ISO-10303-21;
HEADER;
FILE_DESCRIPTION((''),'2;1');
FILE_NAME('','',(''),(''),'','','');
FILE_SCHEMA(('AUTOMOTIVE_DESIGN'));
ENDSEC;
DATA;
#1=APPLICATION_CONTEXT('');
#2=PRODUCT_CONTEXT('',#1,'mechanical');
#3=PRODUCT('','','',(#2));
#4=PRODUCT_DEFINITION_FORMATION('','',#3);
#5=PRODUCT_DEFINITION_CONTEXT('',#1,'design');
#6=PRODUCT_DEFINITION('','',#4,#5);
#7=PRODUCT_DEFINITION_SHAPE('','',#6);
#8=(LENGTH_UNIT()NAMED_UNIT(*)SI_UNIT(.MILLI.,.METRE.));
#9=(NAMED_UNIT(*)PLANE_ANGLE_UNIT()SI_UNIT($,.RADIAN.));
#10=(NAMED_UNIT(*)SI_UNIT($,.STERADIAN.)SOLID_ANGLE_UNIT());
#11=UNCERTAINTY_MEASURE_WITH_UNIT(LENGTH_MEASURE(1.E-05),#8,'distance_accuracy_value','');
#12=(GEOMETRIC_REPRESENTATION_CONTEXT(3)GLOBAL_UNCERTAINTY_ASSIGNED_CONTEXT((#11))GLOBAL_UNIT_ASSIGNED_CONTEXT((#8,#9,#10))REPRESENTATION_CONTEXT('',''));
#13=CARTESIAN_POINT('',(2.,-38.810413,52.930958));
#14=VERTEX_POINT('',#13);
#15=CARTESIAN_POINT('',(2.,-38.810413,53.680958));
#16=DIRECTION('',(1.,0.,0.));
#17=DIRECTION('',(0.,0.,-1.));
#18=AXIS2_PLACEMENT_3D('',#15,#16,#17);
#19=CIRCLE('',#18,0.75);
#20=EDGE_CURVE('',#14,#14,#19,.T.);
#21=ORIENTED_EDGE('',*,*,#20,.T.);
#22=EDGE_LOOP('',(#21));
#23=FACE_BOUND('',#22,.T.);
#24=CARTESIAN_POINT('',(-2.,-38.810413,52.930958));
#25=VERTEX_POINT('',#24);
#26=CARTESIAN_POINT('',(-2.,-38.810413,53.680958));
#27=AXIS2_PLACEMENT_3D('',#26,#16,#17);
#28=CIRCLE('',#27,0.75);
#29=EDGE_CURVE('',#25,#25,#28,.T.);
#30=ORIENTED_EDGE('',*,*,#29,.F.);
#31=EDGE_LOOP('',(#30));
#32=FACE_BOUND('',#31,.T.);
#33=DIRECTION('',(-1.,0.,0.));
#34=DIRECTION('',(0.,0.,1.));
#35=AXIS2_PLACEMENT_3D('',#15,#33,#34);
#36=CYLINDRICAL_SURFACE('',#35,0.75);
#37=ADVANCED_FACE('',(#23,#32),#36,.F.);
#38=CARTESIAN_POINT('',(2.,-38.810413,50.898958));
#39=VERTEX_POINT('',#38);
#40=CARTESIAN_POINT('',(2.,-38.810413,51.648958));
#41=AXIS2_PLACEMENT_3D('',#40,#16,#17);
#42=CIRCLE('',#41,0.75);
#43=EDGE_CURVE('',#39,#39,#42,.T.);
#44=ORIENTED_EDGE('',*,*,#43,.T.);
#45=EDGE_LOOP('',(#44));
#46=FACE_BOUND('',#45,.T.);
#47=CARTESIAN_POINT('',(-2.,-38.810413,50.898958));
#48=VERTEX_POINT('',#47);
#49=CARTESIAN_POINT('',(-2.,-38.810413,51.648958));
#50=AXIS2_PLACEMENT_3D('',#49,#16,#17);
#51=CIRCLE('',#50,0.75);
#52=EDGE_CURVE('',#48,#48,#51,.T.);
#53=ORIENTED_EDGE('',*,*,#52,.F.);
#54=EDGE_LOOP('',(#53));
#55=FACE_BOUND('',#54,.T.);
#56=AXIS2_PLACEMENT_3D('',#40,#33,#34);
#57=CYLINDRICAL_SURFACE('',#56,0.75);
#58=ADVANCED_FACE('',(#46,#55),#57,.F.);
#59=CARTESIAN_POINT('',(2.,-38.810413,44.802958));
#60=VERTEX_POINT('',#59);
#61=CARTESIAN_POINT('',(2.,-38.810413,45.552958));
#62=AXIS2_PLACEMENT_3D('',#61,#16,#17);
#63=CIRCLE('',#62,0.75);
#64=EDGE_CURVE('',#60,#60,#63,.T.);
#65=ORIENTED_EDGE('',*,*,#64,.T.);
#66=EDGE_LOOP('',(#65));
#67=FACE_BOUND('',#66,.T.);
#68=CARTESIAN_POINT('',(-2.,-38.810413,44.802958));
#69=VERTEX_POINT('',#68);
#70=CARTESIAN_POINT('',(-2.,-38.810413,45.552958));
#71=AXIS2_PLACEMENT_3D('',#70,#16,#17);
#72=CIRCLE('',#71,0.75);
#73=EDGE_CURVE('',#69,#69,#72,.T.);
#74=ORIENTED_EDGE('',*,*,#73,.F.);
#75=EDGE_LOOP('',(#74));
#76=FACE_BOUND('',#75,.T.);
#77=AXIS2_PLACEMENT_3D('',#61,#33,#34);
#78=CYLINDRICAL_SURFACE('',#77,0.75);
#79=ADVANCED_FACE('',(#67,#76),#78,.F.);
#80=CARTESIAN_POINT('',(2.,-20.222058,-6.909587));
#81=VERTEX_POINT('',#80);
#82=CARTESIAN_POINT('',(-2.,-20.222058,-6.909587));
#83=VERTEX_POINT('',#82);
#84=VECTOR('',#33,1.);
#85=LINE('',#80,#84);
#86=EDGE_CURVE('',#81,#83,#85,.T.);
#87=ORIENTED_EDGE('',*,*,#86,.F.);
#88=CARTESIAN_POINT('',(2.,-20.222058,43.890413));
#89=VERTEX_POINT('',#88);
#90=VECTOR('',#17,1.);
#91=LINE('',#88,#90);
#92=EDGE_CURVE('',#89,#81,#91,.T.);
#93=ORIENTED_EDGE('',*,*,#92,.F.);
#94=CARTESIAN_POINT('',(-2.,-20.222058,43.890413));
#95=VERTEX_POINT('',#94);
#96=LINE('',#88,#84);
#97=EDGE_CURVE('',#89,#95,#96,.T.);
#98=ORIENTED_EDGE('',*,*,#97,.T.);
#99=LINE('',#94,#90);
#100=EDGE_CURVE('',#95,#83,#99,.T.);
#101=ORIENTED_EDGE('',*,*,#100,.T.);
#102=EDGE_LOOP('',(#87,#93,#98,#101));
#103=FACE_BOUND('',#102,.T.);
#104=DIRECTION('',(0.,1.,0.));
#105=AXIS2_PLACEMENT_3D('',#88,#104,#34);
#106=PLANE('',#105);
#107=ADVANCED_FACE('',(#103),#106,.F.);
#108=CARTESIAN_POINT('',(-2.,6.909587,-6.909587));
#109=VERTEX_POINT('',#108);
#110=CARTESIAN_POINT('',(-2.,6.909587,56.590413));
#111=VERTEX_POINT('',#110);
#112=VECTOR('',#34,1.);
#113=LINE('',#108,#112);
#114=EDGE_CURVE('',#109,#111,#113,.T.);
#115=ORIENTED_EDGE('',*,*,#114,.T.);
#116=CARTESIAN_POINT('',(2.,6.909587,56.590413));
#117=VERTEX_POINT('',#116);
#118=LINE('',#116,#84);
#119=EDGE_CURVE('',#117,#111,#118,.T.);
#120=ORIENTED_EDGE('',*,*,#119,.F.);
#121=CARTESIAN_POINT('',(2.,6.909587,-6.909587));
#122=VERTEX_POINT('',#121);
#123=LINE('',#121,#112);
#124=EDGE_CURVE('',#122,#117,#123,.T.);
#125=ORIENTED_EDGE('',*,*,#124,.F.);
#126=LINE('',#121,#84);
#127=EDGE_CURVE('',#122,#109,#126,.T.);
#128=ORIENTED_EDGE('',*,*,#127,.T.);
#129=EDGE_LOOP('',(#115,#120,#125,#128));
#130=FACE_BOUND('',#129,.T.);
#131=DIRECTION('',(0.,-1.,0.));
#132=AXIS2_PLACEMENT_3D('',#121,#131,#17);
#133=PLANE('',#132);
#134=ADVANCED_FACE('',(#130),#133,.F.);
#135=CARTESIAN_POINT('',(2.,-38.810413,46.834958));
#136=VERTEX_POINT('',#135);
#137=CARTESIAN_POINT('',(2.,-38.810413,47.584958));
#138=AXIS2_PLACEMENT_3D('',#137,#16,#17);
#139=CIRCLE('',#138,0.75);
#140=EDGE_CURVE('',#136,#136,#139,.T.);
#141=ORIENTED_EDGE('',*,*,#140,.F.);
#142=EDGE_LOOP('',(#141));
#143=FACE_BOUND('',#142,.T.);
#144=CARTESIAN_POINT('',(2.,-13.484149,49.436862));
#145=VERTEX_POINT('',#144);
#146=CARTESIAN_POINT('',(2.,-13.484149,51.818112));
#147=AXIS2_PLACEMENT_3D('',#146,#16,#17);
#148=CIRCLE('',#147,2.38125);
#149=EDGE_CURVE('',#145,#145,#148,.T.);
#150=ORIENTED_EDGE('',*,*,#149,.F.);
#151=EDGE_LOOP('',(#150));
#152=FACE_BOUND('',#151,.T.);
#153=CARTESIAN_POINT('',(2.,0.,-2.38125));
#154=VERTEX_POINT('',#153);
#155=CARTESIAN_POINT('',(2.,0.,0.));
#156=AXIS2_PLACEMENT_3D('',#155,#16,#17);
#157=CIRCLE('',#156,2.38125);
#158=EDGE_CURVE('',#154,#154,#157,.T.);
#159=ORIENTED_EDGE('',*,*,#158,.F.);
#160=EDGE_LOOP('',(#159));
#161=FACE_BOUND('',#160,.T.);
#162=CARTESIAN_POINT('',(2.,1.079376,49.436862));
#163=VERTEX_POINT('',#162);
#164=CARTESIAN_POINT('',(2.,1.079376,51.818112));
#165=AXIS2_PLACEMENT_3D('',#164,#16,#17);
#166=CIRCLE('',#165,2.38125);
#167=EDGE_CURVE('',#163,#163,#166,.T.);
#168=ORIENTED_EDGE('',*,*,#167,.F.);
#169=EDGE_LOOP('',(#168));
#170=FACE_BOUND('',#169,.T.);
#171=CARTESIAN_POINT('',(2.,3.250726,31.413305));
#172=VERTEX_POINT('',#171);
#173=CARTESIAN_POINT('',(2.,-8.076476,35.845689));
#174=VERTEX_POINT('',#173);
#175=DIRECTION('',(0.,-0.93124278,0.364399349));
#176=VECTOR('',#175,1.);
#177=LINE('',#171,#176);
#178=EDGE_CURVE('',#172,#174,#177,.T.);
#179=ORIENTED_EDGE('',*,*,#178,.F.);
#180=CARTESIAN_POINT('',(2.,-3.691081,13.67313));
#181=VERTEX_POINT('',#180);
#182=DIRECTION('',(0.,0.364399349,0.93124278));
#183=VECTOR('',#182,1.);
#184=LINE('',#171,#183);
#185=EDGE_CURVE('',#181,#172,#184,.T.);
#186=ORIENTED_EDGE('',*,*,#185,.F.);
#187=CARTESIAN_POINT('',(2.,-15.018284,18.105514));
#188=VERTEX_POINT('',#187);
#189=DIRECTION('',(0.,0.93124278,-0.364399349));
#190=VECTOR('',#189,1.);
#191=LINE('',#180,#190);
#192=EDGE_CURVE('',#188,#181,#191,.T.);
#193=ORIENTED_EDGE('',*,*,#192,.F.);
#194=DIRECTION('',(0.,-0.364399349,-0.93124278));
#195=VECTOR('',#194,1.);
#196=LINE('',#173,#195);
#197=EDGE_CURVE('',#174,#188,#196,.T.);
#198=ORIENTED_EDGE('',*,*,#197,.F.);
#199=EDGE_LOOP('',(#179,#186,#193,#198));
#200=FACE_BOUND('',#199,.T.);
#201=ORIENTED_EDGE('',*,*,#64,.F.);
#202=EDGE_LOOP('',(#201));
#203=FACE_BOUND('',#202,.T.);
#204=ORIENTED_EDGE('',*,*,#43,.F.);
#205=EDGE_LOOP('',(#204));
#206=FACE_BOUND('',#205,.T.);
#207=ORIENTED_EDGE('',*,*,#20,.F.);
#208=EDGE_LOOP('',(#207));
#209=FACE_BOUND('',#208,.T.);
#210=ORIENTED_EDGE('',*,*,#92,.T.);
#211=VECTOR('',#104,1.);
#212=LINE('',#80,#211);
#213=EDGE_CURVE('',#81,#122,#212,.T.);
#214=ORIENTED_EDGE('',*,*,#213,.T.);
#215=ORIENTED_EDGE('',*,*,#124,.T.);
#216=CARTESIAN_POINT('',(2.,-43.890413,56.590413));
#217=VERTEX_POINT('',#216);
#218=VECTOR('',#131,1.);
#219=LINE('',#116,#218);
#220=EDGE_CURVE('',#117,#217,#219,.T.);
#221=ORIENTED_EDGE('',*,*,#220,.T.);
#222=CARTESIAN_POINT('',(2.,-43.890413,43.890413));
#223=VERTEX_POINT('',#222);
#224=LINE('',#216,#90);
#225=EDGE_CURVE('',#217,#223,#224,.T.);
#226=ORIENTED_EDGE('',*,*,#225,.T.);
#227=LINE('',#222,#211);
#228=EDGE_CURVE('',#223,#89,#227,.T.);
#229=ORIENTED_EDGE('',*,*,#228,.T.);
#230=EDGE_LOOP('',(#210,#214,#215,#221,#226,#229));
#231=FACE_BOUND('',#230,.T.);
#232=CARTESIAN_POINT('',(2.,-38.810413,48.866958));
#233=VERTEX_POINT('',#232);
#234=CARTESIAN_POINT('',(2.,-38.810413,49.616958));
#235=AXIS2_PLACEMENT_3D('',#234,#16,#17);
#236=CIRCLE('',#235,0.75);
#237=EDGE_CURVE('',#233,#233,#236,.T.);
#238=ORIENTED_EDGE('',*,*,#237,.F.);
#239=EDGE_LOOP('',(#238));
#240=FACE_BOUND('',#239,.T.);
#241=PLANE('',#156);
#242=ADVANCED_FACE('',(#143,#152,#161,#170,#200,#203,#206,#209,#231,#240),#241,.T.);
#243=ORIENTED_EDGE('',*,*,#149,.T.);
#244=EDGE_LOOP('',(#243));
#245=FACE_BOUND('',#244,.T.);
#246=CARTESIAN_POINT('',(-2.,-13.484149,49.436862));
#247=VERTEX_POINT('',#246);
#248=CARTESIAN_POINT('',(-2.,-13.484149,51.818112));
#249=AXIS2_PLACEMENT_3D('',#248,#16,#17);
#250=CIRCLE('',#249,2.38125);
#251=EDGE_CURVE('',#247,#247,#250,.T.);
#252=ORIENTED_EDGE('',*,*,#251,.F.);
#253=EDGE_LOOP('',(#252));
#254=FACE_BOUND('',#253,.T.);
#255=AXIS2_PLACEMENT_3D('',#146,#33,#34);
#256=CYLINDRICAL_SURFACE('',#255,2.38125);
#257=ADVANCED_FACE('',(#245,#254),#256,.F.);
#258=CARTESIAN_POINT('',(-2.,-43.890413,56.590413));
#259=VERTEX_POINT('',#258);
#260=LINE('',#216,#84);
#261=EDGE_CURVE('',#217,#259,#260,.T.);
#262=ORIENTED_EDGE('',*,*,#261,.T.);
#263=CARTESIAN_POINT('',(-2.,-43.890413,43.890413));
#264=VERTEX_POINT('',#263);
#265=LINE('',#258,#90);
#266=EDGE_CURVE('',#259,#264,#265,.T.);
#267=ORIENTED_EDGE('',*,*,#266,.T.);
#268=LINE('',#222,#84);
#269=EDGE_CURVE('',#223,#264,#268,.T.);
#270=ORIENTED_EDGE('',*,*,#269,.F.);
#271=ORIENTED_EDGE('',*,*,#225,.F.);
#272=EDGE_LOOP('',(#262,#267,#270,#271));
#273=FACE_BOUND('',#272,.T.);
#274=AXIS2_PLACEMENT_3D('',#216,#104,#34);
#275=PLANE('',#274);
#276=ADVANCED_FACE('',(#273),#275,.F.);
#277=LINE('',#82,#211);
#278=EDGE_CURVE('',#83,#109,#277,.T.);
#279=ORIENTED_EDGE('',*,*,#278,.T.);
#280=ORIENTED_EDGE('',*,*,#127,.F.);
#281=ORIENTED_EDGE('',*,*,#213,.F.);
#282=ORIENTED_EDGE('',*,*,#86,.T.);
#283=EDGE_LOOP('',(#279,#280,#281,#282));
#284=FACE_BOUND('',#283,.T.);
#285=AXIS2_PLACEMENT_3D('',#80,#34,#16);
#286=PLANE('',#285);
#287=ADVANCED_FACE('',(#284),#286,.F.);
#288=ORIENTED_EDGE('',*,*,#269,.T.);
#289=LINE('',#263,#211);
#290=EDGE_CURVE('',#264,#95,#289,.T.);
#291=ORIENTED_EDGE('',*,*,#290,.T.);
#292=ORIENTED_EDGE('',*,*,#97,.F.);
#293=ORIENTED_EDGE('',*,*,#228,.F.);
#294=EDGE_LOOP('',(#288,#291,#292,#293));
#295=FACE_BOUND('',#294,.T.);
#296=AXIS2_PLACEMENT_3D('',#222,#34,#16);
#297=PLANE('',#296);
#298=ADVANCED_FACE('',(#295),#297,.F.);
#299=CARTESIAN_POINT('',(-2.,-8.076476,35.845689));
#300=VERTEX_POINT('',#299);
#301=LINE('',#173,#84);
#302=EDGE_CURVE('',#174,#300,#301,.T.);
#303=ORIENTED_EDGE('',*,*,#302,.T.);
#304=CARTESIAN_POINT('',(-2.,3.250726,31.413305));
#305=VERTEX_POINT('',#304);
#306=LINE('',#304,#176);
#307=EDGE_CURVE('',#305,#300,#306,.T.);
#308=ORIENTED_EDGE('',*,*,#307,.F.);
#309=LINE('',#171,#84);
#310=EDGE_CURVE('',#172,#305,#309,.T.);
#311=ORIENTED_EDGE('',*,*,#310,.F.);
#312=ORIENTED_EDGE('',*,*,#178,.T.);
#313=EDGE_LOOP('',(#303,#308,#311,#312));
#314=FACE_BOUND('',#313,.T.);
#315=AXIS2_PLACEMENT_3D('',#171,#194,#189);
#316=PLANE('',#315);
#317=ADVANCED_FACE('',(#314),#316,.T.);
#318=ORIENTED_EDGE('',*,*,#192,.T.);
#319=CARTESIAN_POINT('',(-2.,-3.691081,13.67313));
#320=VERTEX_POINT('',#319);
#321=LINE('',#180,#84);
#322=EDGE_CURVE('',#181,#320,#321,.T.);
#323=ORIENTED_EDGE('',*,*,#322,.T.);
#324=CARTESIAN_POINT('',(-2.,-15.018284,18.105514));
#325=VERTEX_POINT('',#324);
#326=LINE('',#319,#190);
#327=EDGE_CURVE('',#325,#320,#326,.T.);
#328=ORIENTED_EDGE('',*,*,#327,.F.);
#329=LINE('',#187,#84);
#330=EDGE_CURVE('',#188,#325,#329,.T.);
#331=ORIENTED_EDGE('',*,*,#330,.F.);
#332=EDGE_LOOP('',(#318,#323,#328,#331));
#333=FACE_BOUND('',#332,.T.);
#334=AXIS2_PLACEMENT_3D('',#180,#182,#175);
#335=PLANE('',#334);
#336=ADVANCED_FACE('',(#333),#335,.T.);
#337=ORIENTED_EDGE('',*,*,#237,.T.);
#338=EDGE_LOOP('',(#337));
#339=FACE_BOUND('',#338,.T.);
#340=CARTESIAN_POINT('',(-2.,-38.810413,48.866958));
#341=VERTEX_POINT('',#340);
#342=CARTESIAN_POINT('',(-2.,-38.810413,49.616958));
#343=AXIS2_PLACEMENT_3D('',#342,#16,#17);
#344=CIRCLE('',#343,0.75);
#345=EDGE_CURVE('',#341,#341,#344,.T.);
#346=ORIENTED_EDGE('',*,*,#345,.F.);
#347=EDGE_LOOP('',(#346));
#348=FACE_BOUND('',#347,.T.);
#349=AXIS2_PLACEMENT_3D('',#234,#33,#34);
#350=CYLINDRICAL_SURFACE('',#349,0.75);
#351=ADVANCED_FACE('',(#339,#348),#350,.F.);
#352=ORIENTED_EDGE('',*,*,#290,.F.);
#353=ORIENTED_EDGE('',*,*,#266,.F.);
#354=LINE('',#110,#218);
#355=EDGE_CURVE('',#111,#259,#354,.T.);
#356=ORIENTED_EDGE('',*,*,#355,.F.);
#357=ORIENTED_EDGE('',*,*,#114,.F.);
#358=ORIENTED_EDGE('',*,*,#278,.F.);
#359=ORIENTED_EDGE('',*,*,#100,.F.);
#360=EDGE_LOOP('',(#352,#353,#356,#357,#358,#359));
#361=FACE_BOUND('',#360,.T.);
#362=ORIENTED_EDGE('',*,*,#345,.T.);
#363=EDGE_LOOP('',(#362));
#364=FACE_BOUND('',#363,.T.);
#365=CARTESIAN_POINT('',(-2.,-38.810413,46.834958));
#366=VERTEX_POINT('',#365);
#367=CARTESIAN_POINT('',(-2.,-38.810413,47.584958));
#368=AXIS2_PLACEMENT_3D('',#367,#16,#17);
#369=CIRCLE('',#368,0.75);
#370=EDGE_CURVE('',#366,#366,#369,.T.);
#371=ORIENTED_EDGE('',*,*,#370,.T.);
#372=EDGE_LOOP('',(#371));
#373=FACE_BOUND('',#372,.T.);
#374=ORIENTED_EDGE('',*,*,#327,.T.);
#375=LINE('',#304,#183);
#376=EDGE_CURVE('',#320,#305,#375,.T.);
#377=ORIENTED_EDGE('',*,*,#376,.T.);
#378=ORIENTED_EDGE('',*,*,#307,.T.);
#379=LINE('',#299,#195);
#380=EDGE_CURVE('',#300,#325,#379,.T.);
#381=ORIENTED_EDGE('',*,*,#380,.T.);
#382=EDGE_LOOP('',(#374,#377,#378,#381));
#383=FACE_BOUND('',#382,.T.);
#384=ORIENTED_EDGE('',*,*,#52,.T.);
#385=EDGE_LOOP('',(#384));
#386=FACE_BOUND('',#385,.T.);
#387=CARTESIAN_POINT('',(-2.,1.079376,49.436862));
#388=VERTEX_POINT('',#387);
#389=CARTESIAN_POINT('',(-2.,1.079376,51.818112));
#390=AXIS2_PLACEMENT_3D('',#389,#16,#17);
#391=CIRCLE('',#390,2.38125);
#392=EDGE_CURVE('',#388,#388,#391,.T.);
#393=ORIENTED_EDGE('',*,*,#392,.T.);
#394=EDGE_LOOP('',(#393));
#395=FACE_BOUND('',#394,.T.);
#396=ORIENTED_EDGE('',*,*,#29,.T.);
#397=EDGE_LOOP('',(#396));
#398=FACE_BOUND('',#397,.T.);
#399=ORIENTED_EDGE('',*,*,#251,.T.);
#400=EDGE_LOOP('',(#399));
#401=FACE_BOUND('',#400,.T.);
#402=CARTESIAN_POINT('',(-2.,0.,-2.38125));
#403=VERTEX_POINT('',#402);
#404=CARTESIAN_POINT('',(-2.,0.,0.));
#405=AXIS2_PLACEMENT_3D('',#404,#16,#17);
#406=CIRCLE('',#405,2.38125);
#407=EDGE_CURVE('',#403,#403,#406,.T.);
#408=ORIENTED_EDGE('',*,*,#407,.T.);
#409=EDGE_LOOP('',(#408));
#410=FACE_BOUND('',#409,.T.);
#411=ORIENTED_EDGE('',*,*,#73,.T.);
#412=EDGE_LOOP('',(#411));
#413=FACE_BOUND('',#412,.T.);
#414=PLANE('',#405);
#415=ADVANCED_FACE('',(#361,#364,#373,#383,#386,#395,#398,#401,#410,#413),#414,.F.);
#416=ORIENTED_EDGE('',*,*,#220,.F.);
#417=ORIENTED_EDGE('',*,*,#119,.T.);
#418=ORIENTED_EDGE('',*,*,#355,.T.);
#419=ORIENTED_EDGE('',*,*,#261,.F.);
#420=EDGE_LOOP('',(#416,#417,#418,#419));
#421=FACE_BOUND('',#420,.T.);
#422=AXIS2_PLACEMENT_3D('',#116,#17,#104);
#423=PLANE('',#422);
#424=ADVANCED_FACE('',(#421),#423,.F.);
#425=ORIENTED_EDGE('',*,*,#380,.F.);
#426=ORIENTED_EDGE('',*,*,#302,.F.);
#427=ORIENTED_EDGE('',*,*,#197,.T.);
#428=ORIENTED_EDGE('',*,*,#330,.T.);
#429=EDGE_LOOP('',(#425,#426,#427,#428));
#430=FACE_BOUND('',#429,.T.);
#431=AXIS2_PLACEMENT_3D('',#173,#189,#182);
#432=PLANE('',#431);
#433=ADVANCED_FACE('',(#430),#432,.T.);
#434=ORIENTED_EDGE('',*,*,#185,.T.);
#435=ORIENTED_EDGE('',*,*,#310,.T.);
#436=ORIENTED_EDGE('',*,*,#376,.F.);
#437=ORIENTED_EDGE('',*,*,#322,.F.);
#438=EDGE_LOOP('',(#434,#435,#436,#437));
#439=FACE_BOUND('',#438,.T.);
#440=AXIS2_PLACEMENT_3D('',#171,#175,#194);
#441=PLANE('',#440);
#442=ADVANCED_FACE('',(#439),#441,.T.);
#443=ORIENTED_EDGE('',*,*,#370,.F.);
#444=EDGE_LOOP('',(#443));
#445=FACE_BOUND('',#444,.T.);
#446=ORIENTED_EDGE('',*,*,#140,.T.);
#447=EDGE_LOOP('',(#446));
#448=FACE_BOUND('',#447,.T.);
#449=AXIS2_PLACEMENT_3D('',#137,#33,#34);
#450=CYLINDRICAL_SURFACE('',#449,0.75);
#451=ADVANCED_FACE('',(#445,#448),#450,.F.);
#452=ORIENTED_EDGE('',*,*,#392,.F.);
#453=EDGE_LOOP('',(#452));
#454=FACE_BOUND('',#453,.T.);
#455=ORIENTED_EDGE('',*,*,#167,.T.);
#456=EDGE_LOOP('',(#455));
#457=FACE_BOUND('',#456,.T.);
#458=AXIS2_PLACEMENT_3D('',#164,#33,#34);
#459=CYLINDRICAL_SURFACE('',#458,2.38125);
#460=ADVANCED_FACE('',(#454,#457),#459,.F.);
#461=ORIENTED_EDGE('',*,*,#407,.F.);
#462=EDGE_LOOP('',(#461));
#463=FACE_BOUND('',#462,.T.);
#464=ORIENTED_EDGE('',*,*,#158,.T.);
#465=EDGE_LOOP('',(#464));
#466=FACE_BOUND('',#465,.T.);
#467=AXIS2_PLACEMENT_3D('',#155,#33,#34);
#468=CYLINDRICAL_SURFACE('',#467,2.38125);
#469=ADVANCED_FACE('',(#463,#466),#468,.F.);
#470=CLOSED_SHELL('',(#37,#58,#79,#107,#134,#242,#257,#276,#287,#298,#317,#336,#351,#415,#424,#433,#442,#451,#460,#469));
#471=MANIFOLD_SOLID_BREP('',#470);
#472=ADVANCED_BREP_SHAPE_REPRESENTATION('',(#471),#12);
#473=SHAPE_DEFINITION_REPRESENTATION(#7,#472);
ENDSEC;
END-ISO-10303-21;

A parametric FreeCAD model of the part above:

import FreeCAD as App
import Part
import Sketcher
Q = App.Units.Quantity


def add_polygon(sketch, points):
    """Adds a closed chain of lines whose ends are joined by coincident constraints."""
    first, n = sketch.GeometryCount, len(points)
    for a, b in zip(points, points[1:] + points[:1]):
        sketch.addGeometry(Part.LineSegment(App.Vector(*a, 0), App.Vector(*b, 0)), False)
    for i in range(n):
        sketch.addConstraint(Sketcher.Constraint("Coincident", first + i, 2, first + (i + 1) % n, 1))

doc = App.newDocument("Part")
body = doc.addObject("PartDesign::Body", "Body")

sketch1 = body.newObject("Sketcher::SketchObject", "Sketch")
sketch1.AttachmentSupport = (doc.getObject("YZ_Plane"), [""])
sketch1.MapMode = "FlatFace"
add_polygon(sketch1, [(6.9, -6.9), (6.9, 56.6), (-43.9, 56.6), (-43.9, 43.9), (-20.2, 43.9), (-20.2, -6.9)])
sketch1.addGeometry(Part.Circle(App.Vector(-38.8, 53.7, 0), App.Vector(0, 0, 1), 0.8), False)
sketch1.addGeometry(Part.Circle(App.Vector(-38.8, 51.6, 0), App.Vector(0, 0, 1), 0.8), False)
sketch1.addGeometry(Part.Circle(App.Vector(-38.8, 49.6, 0), App.Vector(0, 0, 1), 0.8), False)
sketch1.addGeometry(Part.Circle(App.Vector(-38.8, 47.6, 0), App.Vector(0, 0, 1), 0.8), False)
sketch1.addGeometry(Part.Circle(App.Vector(-38.8, 45.6, 0), App.Vector(0, 0, 1), 0.8), False)
sketch1.addGeometry(Part.Circle(App.Vector(-13.5, 51.8, 0), App.Vector(0, 0, 1), 2.4), False)
sketch1.addGeometry(Part.Circle(App.Vector(1.1, 51.8, 0), App.Vector(0, 0, 1), 2.4), False)
add_polygon(sketch1, [(-8.1, 35.8), (3.3, 31.4), (-3.7, 13.7), (-15, 18.1)])
sketch1.addGeometry(Part.Circle(App.Vector(0, 0, 0), App.Vector(0, 0, 1), 2.4), False)
sketch1.addConstraint(Sketcher.Constraint("Vertical", 0))
sketch1.addConstraint(Sketcher.Constraint("Horizontal", 1))
sketch1.addConstraint(Sketcher.Constraint("Vertical", 2))
sketch1.addConstraint(Sketcher.Constraint("Horizontal", 3))
sketch1.addConstraint(Sketcher.Constraint("Vertical", 4))
sketch1.addConstraint(Sketcher.Constraint("Horizontal", 5))
sketch1.addConstraint(Sketcher.Constraint("Coincident", 17, 3, -1, 1))
sketch1.addConstraint(Sketcher.Constraint("Equal", 6, 7))
sketch1.addConstraint(Sketcher.Constraint("Equal", 7, 8))
sketch1.addConstraint(Sketcher.Constraint("Equal", 8, 9))
sketch1.addConstraint(Sketcher.Constraint("Equal", 9, 10))
sketch1.addConstraint(Sketcher.Constraint("Equal", 11, 12))
sketch1.addConstraint(Sketcher.Constraint("Equal", 12, 17))
sketch1.addConstraint(Sketcher.Constraint("Perpendicular", 13, 14))
sketch1.addConstraint(Sketcher.Constraint("Perpendicular", 14, 15))
sketch1.addConstraint(Sketcher.Constraint("Perpendicular", 15, 16))
sketch1.addConstraint(Sketcher.Constraint("Horizontal", 11, 3, 12, 3))
sketch1.addConstraint(Sketcher.Constraint("Vertical", 6, 3, 7, 3))
sketch1.addConstraint(Sketcher.Constraint("Vertical", 7, 3, 8, 3))
sketch1.addConstraint(Sketcher.Constraint("Vertical", 8, 3, 9, 3))
sketch1.addConstraint(Sketcher.Constraint("Vertical", 9, 3, 10, 3))
sketch1.addConstraint(Sketcher.Constraint("Equal", 1, 4))
sketch1.addConstraint(Sketcher.Constraint("DistanceX", 1, 2, 1, 1, Q("2 in")))
sketch1.addConstraint(Sketcher.Constraint("Diameter", 11, Q("0.1875 in")))
sketch1.addConstraint(Sketcher.Constraint("DistanceY", 0, 1, 0, 2, Q("2.5 in")))
sketch1.addConstraint(Sketcher.Constraint("DistanceX", 6, 3, 0, 2, Q("1.8 in")))
sketch1.addConstraint(Sketcher.Constraint("Distance", 14, Q("0.75 in")))
sketch1.addConstraint(Sketcher.Constraint("Diameter", 6, 1.5))
sketch1.addConstraint(Sketcher.Constraint("DistanceY", 7, 3, 6, 3, Q("0.08 in")))
sketch1.addConstraint(Sketcher.Constraint("DistanceY", 8, 3, 7, 3, Q("0.08 in")))
sketch1.addConstraint(Sketcher.Constraint("DistanceY", 9, 3, 8, 3, Q("0.08 in")))
sketch1.addConstraint(Sketcher.Constraint("DistanceY", 10, 3, 9, 3, Q("0.08 in")))
sketch1.addConstraint(Sketcher.Constraint("DistanceY", 12, 3, 0, 2, 4.772301))
sketch1.addConstraint(Sketcher.Constraint("DistanceY", 4, 2, 15, 2, 25.015101))
sketch1.addConstraint(Sketcher.Constraint("DistanceX", 3, 1, 3, 2, 23.668355))
sketch1.addConstraint(Sketcher.Constraint("DistanceY", -1, 1, 6, 3, 53.680958))
sketch1.addConstraint(Sketcher.Constraint("DistanceX", 11, 3, -1, 1, 13.484149))
sketch1.addConstraint(Sketcher.Constraint("DistanceX", 14, 2, -1, 1, 3.691081))
sketch1.addConstraint(Sketcher.Constraint("DistanceY", -1, 1, 14, 2, 13.67313))
sketch1.addConstraint(Sketcher.Constraint("DistanceY", -1, 1, 16, 2, 35.845689))
sketch1.addConstraint(Sketcher.Constraint("DistanceX", 7, 3, 12, 3, 39.889788))
sketch1.addConstraint(Sketcher.Constraint("DistanceX", 3, 2, 11, 3, 6.737908))
sketch1.addConstraint(Sketcher.Constraint("DistanceX", 12, 3, 13, 2, 2.171351))
pad1 = body.newObject("PartDesign::Pad", "Pad")
pad1.Profile = sketch1
pad1.Length = 4
pad1.Midplane = True

doc.recompute()
